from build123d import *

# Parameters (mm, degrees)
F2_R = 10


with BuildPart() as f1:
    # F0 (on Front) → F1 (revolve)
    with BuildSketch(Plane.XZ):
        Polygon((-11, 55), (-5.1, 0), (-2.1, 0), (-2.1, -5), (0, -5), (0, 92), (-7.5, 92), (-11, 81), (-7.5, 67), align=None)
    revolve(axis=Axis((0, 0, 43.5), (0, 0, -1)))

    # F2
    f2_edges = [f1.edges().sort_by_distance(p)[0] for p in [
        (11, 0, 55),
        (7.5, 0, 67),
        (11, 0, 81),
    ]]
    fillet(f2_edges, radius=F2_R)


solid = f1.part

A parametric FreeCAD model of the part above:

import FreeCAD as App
import Part
import Sketcher
from FreeCAD import Vector
Q = App.Units.Quantity


def edges_at(feature, points):
    """Names of the edges that pass closest to the given points."""
    edges = feature.Shape.Edges
    near = lambda p: min(range(len(edges)), key=lambda i: edges[i].distToShape(Part.Vertex(*p))[0])
    return sorted({f"Edge{near(p) + 1}" for p in points})


def add_polygon(sketch, points):
    """Adds a closed chain of lines whose ends are joined by coincident constraints."""
    first, n = sketch.GeometryCount, len(points)
    for a, b in zip(points, points[1:] + points[:1]):
        sketch.addGeometry(Part.LineSegment(App.Vector(*a, 0), App.Vector(*b, 0)), False)
    for i in range(n):
        sketch.addConstraint(Sketcher.Constraint("Coincident", first + i, 2, first + (i + 1) % n, 1))

doc = App.newDocument("Part")
params = doc.addObject("Spreadsheet::Sheet", "Params")
for row, (alias, value) in enumerate([
    ("sketch1_width", "3 mm"),
    ("sketch1_height", "5 mm"),
    ("sketch1_height2", "97 mm"),
    ("sketch1_width2", "2.1 mm"),
    ("sketch1_width3", "7.5 mm"),
    ("revolution_angle", "360 deg"),
    ("fillet_radius", "10 mm"),
], start=1):
    params.set(f"A{row}", alias)
    params.set(f"B{row}", "=" + value)
    params.setAlias(f"B{row}", alias)

body = doc.addObject("PartDesign::Body", "Body")

sketch1 = body.newObject("Sketcher::SketchObject", "Sketch")
sketch1.AttachmentSupport = (doc.getObject("XZ_Plane"), [""])
sketch1.MapMode = "FlatFace"
add_polygon(sketch1, [(-11, 55), (-5.1, 0), (-2.1, 0), (-2.1, -5), (0, -5), (0, 92), (-7.5, 92), (-11, 81), (-7.5, 67)])
sketch1.addConstraint([
    Sketcher.Constraint("Horizontal", 1),
    Sketcher.Constraint("Vertical", 2),
    Sketcher.Constraint("Horizontal", 3),
    Sketcher.Constraint("Vertical", 4),
    Sketcher.Constraint("Horizontal", 5),
    Sketcher.Constraint("PointOnObject", 0, 2, -1),
    Sketcher.Constraint("PointOnObject", 3, 2, -2),
    Sketcher.Constraint("Vertical", 5, 2, 7, 2),
    Sketcher.Constraint("Vertical", 6, 2, 8, 2),
    Sketcher.Constraint("DistanceX", 1, 1, 1, 2, Q("3 mm")),
    Sketcher.Constraint("DistanceY", 2, 2, 2, 1, Q("5 mm")),
    Sketcher.Constraint("DistanceY", 4, 1, 4, 2, Q("97 mm")),
    Sketcher.Constraint("DistanceX", 3, 1, 3, 2, Q("2.1 mm")),
    Sketcher.Constraint("DistanceX", 5, 2, 5, 1, Q("7.5 mm")),
    Sketcher.Constraint("DistanceX", 6, 2, -1, 1, Q("11 mm")),
    Sketcher.Constraint("DistanceY", -1, 1, 6, 2, Q("81 mm")),
    Sketcher.Constraint("DistanceY", -1, 1, 7, 2, Q("67 mm")),
    Sketcher.Constraint("DistanceY", -1, 1, 8, 2, Q("55 mm")),
])
sketch1.setExpression("Constraints[18]", "Params.sketch1_width")
sketch1.setExpression("Constraints[19]", "Params.sketch1_height")
sketch1.setExpression("Constraints[20]", "Params.sketch1_height2")
sketch1.setExpression("Constraints[21]", "Params.sketch1_width2")
sketch1.setExpression("Constraints[22]", "Params.sketch1_width3")
revolution = body.newObject("PartDesign::Revolution", "Revolution")
revolution.Profile = sketch1
revolution.ReferenceAxis = (sketch1, ["V_Axis"])
revolution.setExpression("Angle", "Params.revolution_angle")
doc.recompute()

fillet = body.newObject("PartDesign::Fillet", "Fillet")
fillet.Base = (revolution, edges_at(revolution, [(11, 0, 55), (7.5, 0, 67), (11, 0, 81)]))
fillet.setExpression("Radius", "Params.fillet_radius")

doc.recompute()
